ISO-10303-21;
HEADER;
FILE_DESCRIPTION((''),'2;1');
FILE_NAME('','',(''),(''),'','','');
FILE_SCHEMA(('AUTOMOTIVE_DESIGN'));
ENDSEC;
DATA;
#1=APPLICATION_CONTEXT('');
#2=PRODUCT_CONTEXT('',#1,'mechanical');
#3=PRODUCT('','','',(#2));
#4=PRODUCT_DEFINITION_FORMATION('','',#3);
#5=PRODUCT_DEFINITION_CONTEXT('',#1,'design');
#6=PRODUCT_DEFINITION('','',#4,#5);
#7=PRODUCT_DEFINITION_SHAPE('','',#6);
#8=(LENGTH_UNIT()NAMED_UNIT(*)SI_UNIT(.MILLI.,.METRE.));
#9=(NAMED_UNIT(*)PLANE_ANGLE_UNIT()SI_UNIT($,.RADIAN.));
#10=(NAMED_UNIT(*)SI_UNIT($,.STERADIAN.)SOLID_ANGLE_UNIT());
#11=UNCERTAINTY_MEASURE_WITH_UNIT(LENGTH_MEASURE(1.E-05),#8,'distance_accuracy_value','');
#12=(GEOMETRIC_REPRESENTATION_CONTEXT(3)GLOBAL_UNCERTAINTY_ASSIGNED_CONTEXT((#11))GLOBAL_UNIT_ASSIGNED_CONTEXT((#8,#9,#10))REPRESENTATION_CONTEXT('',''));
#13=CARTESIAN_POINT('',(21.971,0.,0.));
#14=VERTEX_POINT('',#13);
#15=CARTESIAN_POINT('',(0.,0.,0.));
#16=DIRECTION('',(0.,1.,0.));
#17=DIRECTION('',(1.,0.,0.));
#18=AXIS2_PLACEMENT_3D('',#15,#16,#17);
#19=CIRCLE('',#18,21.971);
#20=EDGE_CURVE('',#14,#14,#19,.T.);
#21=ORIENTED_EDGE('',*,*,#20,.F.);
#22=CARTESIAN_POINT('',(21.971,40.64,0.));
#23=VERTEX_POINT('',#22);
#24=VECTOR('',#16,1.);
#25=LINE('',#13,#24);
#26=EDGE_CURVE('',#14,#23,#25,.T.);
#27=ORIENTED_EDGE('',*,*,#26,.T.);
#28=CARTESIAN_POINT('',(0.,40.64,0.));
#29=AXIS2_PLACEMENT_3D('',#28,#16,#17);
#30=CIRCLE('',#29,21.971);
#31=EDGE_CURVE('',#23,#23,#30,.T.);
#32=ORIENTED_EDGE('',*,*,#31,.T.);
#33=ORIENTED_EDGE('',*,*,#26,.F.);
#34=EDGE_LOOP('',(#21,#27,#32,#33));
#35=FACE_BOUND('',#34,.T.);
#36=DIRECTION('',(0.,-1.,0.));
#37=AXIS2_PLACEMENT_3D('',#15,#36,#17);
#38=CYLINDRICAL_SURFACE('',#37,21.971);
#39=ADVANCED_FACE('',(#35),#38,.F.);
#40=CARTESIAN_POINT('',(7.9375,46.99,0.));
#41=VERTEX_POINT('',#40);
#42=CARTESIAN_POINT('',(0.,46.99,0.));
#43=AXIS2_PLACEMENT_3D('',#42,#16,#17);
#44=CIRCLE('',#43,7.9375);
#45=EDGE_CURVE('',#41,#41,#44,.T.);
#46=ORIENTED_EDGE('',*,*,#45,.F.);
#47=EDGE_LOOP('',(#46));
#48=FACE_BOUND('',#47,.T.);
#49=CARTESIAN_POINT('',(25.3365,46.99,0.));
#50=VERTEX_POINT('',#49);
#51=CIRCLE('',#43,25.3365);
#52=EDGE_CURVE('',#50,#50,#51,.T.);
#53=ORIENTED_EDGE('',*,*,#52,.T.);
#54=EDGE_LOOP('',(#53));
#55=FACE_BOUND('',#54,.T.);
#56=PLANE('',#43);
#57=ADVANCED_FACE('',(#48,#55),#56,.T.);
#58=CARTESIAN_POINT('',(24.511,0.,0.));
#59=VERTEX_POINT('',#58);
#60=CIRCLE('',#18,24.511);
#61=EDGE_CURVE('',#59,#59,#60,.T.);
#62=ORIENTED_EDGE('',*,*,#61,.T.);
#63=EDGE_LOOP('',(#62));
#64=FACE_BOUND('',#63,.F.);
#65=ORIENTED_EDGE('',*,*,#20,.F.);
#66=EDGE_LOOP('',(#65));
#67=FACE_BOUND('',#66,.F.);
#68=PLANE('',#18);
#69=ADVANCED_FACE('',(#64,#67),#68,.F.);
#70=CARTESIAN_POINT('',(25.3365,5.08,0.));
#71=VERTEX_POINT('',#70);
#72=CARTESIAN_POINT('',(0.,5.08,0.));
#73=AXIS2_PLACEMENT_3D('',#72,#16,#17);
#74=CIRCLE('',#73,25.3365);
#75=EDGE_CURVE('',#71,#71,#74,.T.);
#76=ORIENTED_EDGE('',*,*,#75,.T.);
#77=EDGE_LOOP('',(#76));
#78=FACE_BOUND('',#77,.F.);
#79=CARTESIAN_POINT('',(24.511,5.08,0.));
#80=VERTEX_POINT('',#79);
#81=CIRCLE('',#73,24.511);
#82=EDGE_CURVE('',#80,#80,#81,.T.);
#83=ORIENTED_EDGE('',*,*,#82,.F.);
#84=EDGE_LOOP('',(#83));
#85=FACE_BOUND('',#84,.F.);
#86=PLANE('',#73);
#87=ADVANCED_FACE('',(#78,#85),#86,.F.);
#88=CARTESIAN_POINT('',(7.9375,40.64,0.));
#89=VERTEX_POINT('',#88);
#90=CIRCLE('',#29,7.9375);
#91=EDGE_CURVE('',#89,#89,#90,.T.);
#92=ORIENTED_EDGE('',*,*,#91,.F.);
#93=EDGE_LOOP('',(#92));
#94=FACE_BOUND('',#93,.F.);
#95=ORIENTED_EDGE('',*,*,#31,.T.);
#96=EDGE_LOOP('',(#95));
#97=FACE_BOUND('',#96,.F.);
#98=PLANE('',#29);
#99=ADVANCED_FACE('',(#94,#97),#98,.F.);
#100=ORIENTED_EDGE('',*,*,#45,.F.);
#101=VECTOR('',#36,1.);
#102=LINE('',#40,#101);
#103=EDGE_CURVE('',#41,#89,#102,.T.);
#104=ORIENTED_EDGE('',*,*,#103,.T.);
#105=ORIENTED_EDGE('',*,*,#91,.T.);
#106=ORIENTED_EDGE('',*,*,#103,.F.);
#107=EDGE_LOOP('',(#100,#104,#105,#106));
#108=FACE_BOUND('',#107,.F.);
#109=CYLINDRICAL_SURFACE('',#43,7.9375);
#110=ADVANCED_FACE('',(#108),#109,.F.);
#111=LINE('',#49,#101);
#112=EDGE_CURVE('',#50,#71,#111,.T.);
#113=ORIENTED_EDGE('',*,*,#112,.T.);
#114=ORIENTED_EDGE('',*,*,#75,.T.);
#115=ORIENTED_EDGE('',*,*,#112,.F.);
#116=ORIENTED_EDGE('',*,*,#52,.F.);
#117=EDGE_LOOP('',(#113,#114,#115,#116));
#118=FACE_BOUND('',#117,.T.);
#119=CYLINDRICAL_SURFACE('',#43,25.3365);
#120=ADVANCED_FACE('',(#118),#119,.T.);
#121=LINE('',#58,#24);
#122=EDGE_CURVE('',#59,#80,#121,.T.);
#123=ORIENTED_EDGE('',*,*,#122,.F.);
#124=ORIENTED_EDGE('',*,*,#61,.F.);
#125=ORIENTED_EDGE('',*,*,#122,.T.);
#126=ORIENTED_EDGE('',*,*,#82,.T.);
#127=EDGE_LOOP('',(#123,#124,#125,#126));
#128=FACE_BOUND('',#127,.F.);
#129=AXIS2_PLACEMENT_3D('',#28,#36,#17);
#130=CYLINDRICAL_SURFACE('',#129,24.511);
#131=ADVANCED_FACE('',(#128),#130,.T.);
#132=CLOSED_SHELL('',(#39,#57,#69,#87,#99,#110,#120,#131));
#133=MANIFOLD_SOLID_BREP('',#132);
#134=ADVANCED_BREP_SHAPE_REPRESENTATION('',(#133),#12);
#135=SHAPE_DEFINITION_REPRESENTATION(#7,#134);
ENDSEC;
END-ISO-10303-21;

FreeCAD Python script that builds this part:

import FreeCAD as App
import Part
import Sketcher
Q = App.Units.Quantity

doc = App.newDocument("Part")
body = doc.addObject("PartDesign::Body", "Body")

# Sketch on XZ plane
sketch1 = body.newObject("Sketcher::SketchObject", "Sketch")
sketch1.AttachmentSupport = (doc.getObject("XZ_Plane"), [""])
sketch1.MapMode = "FlatFace"
sketch1.addGeometry(Part.Circle(App.Vector(0, 0, 0), App.Vector(0, 0, 1), 25), False)
sketch1.addGeometry(Part.Circle(App.Vector(0, 0, 0), App.Vector(0, 0, 1), 22), False)
sketch1.addConstraint(Sketcher.Constraint("Coincident", 0, 3, -1, 1))
sketch1.addConstraint(Sketcher.Constraint("Coincident", 1, 3, -1, 1))
sketch1.addConstraint(Sketcher.Constraint("Diameter", 0, Q("1.93 in")))
sketch1.addConstraint(Sketcher.Constraint("Diameter", 1, Q("1.73 in")))
pad1 = body.newObject("PartDesign::Pad", "Pad")
pad1.Profile = sketch1
pad1.Length = Q("1.6 in")
pad1.Reversed = True

# Sketch on XZ plane
sketch2 = body.newObject("Sketcher::SketchObject", "Sketch001")
sketch2.AttachmentSupport = (doc.getObject("XZ_Plane"), [""])
sketch2.MapMode = "FlatFace"
sketch2.AttachmentOffset = App.Placement(App.Vector(0, 0, -1.6 * 25.4), App.Rotation())
sketch2.addGeometry(Part.Circle(App.Vector(0, 0, 0), App.Vector(0, 0, 1), 25), False)
sketch2.addConstraint(Sketcher.Constraint("Coincident", 0, 3, -1, 1))
sketch2.addConstraint(Sketcher.Constraint("Diameter", 0, Q("1.93 in")))
pad2 = body.newObject("PartDesign::Pad", "Pad001")
pad2.Profile = sketch2
pad2.Length = Q("0.25 in")
pad2.Reversed = True

# Sketch on XZ plane
sketch3 = body.newObject("Sketcher::SketchObject", "Sketch002")
sketch3.AttachmentSupport = (doc.getObject("XZ_Plane"), [""])
sketch3.MapMode = "FlatFace"
sketch3.AttachmentOffset = App.Placement(App.Vector(0, 0, -1.85 * 25.4), App.Rotation())
sketch3.addGeometry(Part.Circle(App.Vector(0, 0, 0), App.Vector(0, 0, 1), 8), False)
sketch3.addConstraint(Sketcher.Constraint("Coincident", 0, 3, -1, 1))
sketch3.addConstraint(Sketcher.Constraint("Diameter", 0, Q("0.625 in")))
pocket1 = body.newObject("PartDesign::Pocket", "Pocket")
pocket1.Profile = sketch3
pocket1.Type = "UpToFirst"
pocket1.Reversed = True

# Sketch on XZ plane
sketch4 = body.newObject("Sketcher::SketchObject", "Sketch003")
sketch4.AttachmentSupport = (doc.getObject("XZ_Plane"), [""])
sketch4.MapMode = "FlatFace"
sketch4.AttachmentOffset = App.Placement(App.Vector(0, 0, -1.85 * 25.4), App.Rotation())
sketch4.addGeometry(Part.Circle(App.Vector(0, 0, 0), App.Vector(0, 0, 1), 25), False)
sketch4.addGeometry(Part.Circle(App.Vector(0, 0, 0), App.Vector(0, 0, 1), 25), False)
sketch4.addConstraint(Sketcher.Constraint("Coincident", 0, 3, -1, 1))
sketch4.addConstraint(Sketcher.Constraint("Coincident", 1, 3, -1, 1))
sketch4.addConstraint(Sketcher.Constraint("Diameter", 1, Q("1.93 in")))
sketch4.addConstraint(Sketcher.Constraint("Diameter", 0, Q("1.995 in")))
pad3 = body.newObject("PartDesign::Pad", "Pad002")
pad3.Profile = sketch4
pad3.Length = Q("1.65 in")

doc.recompute()
